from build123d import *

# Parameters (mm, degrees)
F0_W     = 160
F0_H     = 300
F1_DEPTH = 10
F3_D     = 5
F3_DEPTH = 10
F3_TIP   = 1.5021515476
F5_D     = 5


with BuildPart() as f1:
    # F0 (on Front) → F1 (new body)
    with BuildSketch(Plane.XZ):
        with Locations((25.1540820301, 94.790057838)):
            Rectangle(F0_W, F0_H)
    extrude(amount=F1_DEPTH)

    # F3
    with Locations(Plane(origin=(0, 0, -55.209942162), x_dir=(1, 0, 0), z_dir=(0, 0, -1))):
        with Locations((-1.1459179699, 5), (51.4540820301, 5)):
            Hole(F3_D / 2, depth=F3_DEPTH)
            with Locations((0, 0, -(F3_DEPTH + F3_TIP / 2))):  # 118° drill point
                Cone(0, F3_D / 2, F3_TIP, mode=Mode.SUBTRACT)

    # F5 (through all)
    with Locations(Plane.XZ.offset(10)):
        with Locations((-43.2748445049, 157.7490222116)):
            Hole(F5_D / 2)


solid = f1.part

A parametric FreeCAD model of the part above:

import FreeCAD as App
import Part
import Sketcher
from FreeCAD import Vector
Q = App.Units.Quantity


def add_polygon(sketch, points):
    """Adds a closed chain of lines whose ends are joined by coincident constraints."""
    first, n = sketch.GeometryCount, len(points)
    for a, b in zip(points, points[1:] + points[:1]):
        sketch.addGeometry(Part.LineSegment(App.Vector(*a, 0), App.Vector(*b, 0)), False)
    for i in range(n):
        sketch.addConstraint(Sketcher.Constraint("Coincident", first + i, 2, first + (i + 1) % n, 1))

doc = App.newDocument("Part")
body = doc.addObject("PartDesign::Body", "Body")

sketch1 = body.newObject("Sketcher::SketchObject", "Sketch")
sketch1.AttachmentSupport = (doc.getObject("XZ_Plane"), [""])
sketch1.MapMode = "FlatFace"
add_polygon(sketch1, [(-54.845918, 244.790058), (-54.845918, -55.209942), (105.154082, -55.209942), (105.154082, 244.790058)])
sketch1.addConstraint([
    Sketcher.Constraint("Vertical", 0),
    Sketcher.Constraint("Horizontal", 1),
    Sketcher.Constraint("Vertical", 2),
    Sketcher.Constraint("Horizontal", 3),
    Sketcher.Constraint("DistanceX", 1, 1, 1, 2, Q("160 mm")),
    Sketcher.Constraint("DistanceY", 0, 2, 0, 1, Q("300 mm")),
    Sketcher.Constraint("DistanceX", 0, 2, -1, 1, Q("54.845918 mm")),
    Sketcher.Constraint("DistanceY", 0, 2, -1, 1, Q("55.209942 mm")),
])
pad1 = body.newObject("PartDesign::Pad", "Pad")
pad1.Profile = sketch1
pad1.Length = 10

sketch2 = body.newObject("Sketcher::SketchObject", "Sketch001")
sketch2.AttachmentSupport = (doc.getObject("XY_Plane"), [""])
sketch2.MapMode = "FlatFace"
sketch2.AttachmentOffset = App.Placement(Vector(0, 0, -55.209942), App.Rotation())
sketch2.addGeometry([
    Part.Circle(Vector(-1.145918, -5, 0), Vector(0, 0, 1), 2.5),
    Part.Circle(Vector(51.454082, -5, 0), Vector(0, 0, 1), 2.5),
], False)
sketch2.addConstraint([
    Sketcher.Constraint("Equal", 0, 1),
    Sketcher.Constraint("Horizontal", 0, 3, 1, 3),
    Sketcher.Constraint("Diameter", 0, Q("5 mm")),
    Sketcher.Constraint("DistanceY", 0, 3, -1, 1, Q("5 mm")),
    Sketcher.Constraint("DistanceX", 0, 3, 1, 3, Q("52.6 mm")),
    Sketcher.Constraint("DistanceX", 0, 3, -1, 1, Q("1.145918 mm")),
])
doc.recompute()
hole = body.newObject("PartDesign::Hole", "Hole")
hole.Profile = sketch2
hole.ThreadType = "None"
hole.Diameter = 5
hole.DepthType = "Dimension"
hole.Depth = 10
hole.DrillPoint = "Angled"
hole.DrillPointAngle = 118
hole.Reversed = True

sketch3 = body.newObject("Sketcher::SketchObject", "Sketch002")
sketch3.AttachmentSupport = (doc.getObject("XZ_Plane"), [""])
sketch3.MapMode = "FlatFace"
sketch3.AttachmentOffset = App.Placement(Vector(0, 0, 10), App.Rotation())
sketch3.addGeometry(Part.Circle(Vector(-43.274845, 157.749022, 0), Vector(0, 0, 1), 2.5), False)
sketch3.addConstraint([
    Sketcher.Constraint("Diameter", 0, Q("5 mm")),
    Sketcher.Constraint("DistanceX", 0, 3, -1, 1, Q("43.274845 mm")),
    Sketcher.Constraint("DistanceY", -1, 1, 0, 3, Q("157.749022 mm")),
])
doc.recompute()
hole2 = body.newObject("PartDesign::Hole", "Hole001")
hole2.Profile = sketch3
hole2.ThreadType = "None"
hole2.Diameter = 5
hole2.DepthType = "ThroughAll"

doc.recompute()
